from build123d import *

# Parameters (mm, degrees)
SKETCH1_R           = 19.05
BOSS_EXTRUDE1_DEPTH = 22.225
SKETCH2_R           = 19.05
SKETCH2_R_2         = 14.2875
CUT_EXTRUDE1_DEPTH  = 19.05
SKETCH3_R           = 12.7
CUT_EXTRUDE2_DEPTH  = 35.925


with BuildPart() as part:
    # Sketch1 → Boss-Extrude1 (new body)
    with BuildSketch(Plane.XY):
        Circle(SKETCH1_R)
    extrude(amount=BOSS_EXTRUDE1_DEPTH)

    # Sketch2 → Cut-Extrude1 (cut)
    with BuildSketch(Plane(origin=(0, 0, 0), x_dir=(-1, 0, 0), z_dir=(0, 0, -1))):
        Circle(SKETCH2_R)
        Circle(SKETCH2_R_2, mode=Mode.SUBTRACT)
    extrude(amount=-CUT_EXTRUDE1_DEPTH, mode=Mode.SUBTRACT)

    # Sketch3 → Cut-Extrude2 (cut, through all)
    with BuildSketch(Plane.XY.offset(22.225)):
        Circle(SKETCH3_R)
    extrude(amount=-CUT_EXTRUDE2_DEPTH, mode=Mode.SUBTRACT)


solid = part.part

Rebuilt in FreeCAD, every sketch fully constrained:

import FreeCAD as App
import Part
import Sketcher

V = App.Vector
Q = App.Units.Quantity

doc = App.newDocument("Part")
body = doc.addObject("PartDesign::Body", "Body")

sketch1 = body.newObject("Sketcher::SketchObject", "Sketch")
sketch1.AttachmentSupport = (doc.getObject("XY_Plane"), [""])
sketch1.MapMode = "FlatFace"
sketch1.addGeometry(Part.Circle(V(0, 0, 0), V(0, 0, 1), 19), False)
sketch1.addConstraint([
    Sketcher.Constraint("Coincident", 0, 3, -1, 1),
    Sketcher.Constraint("Diameter", 0, Q("1.5 in")),
])
pad1 = body.newObject("PartDesign::Pad", "Pad")
pad1.Profile = sketch1
pad1.Length = Q("0.875 in")

sketch2 = body.newObject("Sketcher::SketchObject", "Sketch001")
sketch2.AttachmentSupport = (doc.getObject("XY_Plane"), [""])
sketch2.MapMode = "FlatFace"
sketch2.addGeometry([
    Part.Circle(V(0, 0, 0), V(0, 0, 1), 19),
    Part.Circle(V(0, 0, 0), V(0, 0, 1), 14),
], False)
sketch2.addConstraint([
    Sketcher.Constraint("Coincident", 0, 3, -1, 1),
    Sketcher.Constraint("Coincident", 1, 3, -1, 1),
    Sketcher.Constraint("Diameter", 0, Q("1.5 in")),
    Sketcher.Constraint("Diameter", 1, Q("1.125 in")),
])
pocket1 = body.newObject("PartDesign::Pocket", "Pocket")
pocket1.Profile = sketch2
pocket1.Length = Q("0.75 in")
pocket1.Reversed = True

sketch3 = body.newObject("Sketcher::SketchObject", "Sketch002")
sketch3.AttachmentSupport = (doc.getObject("XY_Plane"), [""])
sketch3.MapMode = "FlatFace"
sketch3.AttachmentOffset = App.Placement(V(0, 0, 0.875 * 25.4), App.Rotation())
sketch3.addGeometry(Part.Circle(V(0, 0, 0), V(0, 0, 1), 13), False)
sketch3.addConstraint([
    Sketcher.Constraint("Coincident", 0, 3, -1, 1),
    Sketcher.Constraint("Diameter", 0, Q("1 in")),
])
pocket2 = body.newObject("PartDesign::Pocket", "Pocket001")
pocket2.Profile = sketch3
pocket2.Type = "ThroughAll"

doc.recompute()
